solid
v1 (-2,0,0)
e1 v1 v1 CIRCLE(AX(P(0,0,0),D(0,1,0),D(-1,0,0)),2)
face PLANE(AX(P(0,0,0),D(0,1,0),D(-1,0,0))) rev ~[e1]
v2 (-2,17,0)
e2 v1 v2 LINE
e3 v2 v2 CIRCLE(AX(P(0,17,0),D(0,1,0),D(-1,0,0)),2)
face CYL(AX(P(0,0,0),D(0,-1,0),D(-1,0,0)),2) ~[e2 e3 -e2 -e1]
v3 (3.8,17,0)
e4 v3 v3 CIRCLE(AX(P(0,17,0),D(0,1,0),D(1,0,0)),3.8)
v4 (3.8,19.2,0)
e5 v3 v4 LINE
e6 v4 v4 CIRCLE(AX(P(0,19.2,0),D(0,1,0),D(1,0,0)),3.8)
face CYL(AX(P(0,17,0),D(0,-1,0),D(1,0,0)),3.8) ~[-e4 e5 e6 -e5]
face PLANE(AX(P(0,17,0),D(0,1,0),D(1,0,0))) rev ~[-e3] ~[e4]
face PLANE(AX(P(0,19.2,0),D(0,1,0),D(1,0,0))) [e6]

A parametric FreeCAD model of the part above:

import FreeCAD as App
import Part
import Sketcher

V = App.Vector
Q = App.Units.Quantity

doc = App.newDocument("Part")
params = doc.addObject("Spreadsheet::Sheet", "Params")
for row, (alias, value) in enumerate([
    ("sketch1_diameter", "4 mm"),
    ("pad1_length", "17 mm"),
    ("sketch2_diameter", "7.6 mm"),
    ("pad2_length", "2.2 mm"),
], start=1):
    params.set(f"A{row}", alias)
    params.set(f"B{row}", "=" + value)
    params.setAlias(f"B{row}", alias)

body = doc.addObject("PartDesign::Body", "Body")

# Sketch on XZ plane
sketch1 = body.newObject("Sketcher::SketchObject", "Sketch")
sketch1.AttachmentSupport = (doc.getObject("XZ_Plane"), [""])
sketch1.MapMode = "FlatFace"
sketch1.addGeometry(Part.Circle(V(0, 0, 0), V(0, 0, 1), 2), False)
sketch1.addConstraint(Sketcher.Constraint("Coincident", 0, 3, -1, 1))
sketch1.addConstraint(Sketcher.Constraint("Diameter", 0, Q("4 mm")))
sketch1.setExpression("Constraints[1]", "Params.sketch1_diameter")
pad1 = body.newObject("PartDesign::Pad", "Pad")
pad1.Profile = sketch1
pad1.setExpression("Length", "Params.pad1_length")
pad1.Reversed = True

# Sketch on XZ plane
sketch2 = body.newObject("Sketcher::SketchObject", "Sketch001")
sketch2.AttachmentSupport = (doc.getObject("XZ_Plane"), [""])
sketch2.MapMode = "FlatFace"
sketch2.AttachmentOffset = App.Placement(V(0, 0, -17), App.Rotation())
sketch2.addGeometry(Part.Circle(V(0, 0, 0), V(0, 0, 1), 3.8), False)
sketch2.addConstraint(Sketcher.Constraint("Coincident", 0, 3, -1, 1))
sketch2.addConstraint(Sketcher.Constraint("Diameter", 0, Q("7.6 mm")))
sketch2.setExpression("Constraints[1]", "Params.sketch2_diameter")
pad2 = body.newObject("PartDesign::Pad", "Pad001")
pad2.Profile = sketch2
pad2.setExpression("Length", "Params.pad2_length")
pad2.Reversed = True

doc.recompute()
